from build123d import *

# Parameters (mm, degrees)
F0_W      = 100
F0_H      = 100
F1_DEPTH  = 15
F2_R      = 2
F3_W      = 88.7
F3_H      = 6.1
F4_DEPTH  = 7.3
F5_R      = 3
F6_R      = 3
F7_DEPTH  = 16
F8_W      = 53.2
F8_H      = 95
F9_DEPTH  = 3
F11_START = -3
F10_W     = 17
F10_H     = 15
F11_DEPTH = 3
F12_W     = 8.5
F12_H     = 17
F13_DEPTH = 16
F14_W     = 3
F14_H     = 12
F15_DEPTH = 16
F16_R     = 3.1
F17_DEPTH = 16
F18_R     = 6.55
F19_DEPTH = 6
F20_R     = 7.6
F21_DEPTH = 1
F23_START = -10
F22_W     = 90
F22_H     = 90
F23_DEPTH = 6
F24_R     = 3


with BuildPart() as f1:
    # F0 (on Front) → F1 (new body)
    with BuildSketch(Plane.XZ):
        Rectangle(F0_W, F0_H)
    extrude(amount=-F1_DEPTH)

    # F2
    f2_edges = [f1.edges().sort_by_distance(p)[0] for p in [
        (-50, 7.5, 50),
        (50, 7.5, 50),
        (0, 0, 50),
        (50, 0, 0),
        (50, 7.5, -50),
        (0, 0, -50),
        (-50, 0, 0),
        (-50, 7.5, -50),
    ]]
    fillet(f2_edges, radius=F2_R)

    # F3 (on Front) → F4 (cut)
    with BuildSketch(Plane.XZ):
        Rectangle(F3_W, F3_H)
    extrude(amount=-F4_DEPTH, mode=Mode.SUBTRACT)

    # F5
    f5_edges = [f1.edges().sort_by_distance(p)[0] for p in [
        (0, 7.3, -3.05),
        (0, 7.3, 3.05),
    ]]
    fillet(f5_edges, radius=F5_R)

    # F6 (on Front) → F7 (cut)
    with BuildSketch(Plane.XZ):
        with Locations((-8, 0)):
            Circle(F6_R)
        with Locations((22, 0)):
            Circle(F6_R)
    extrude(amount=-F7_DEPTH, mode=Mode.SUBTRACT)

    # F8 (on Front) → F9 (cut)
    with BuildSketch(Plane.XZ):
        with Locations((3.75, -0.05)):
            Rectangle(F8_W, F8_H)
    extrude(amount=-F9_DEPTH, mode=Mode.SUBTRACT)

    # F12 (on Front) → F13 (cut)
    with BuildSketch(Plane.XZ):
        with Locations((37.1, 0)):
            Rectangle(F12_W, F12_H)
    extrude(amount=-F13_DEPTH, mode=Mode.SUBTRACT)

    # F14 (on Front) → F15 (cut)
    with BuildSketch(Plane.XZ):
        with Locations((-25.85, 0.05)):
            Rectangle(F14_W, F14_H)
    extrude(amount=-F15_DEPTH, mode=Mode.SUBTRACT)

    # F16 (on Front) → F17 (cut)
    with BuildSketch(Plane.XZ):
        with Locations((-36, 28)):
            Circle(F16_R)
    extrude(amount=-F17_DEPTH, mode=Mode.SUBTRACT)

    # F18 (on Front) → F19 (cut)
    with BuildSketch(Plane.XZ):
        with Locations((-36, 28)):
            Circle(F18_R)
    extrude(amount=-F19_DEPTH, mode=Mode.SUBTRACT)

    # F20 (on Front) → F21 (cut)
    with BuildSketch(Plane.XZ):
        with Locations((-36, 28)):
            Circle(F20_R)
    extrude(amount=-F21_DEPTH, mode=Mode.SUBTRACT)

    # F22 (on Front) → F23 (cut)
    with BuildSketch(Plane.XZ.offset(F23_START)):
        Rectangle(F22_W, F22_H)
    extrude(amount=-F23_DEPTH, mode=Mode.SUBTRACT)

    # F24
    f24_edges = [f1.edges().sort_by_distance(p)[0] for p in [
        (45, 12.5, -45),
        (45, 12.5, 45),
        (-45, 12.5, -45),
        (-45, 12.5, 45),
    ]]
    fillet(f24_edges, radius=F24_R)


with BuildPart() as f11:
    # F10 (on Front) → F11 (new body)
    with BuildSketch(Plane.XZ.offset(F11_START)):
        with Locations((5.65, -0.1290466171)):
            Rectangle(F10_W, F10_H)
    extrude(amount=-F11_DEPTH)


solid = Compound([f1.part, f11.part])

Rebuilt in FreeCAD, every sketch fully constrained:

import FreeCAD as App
import Part
import Sketcher
Q = App.Units.Quantity


def edges_at(feature, points):
    """Names of the edges that pass closest to the given points."""
    edges = feature.Shape.Edges
    near = lambda p: min(range(len(edges)), key=lambda i: edges[i].distToShape(Part.Vertex(*p))[0])
    return sorted({f"Edge{near(p) + 1}" for p in points})

doc = App.newDocument("Part")
params = doc.addObject("Spreadsheet::Sheet", "Params")
for row, (alias, value) in enumerate([
    ("sketch1_width", "100 mm"),
    ("pad1_length", "15 mm"),
    ("fillet_radius", "2 mm"),
    ("sketch2_width", "88.7 mm"),
    ("sketch2_height", "6.1 mm"),
    ("pocket1_length", "7.3 mm"),
    ("fillet2_radius", "3 mm"),
    ("sketch3_diameter", "6 mm"),
    ("pocket2_length", "16 mm"),
    ("sketch4_height", "95 mm"),
    ("sketch4_width", "53.2 mm"),
    ("pocket3_length", "3 mm"),
    ("sketch5_height", "17 mm"),
    ("sketch5_width", "8.5 mm"),
    ("pocket4_length", "16 mm"),
    ("sketch6_width", "3 mm"),
    ("sketch6_height", "12 mm"),
    ("pocket5_length", "16 mm"),
    ("sketch7_diameter", "6.2 mm"),
    ("pocket6_length", "16 mm"),
    ("sketch8_diameter", "13.1 mm"),
    ("pocket7_length", "6 mm"),
    ("sketch9_diameter", "15.2 mm"),
    ("pocket8_length", "1 mm"),
    ("sketch10_width", "90 mm"),
    ("pocket9_length", "6 mm"),
    ("fillet3_radius", "3 mm"),
    ("sketch11_width", "17 mm"),
    ("sketch11_height", "15 mm"),
    ("pad2_length", "3 mm"),
], start=1):
    params.set(f"A{row}", alias)
    params.set(f"B{row}", "=" + value)
    params.setAlias(f"B{row}", alias)

body = doc.addObject("PartDesign::Body", "Body")

# Sketch on XZ plane
sketch1 = body.newObject("Sketcher::SketchObject", "Sketch")
sketch1.AttachmentSupport = (doc.getObject("XZ_Plane"), [""])
sketch1.MapMode = "FlatFace"
sketch1.addGeometry(Part.LineSegment(App.Vector(-50, 50, 0), App.Vector(-50, -50, 0)), False)
sketch1.addGeometry(Part.LineSegment(App.Vector(-50, -50, 0), App.Vector(50, -50, 0)), False)
sketch1.addGeometry(Part.LineSegment(App.Vector(50, -50, 0), App.Vector(50, 50, 0)), False)
sketch1.addGeometry(Part.LineSegment(App.Vector(50, 50, 0), App.Vector(-50, 50, 0)), False)
sketch1.addConstraint(Sketcher.Constraint("Coincident", 0, 2, 1, 1))
sketch1.addConstraint(Sketcher.Constraint("Coincident", 1, 2, 2, 1))
sketch1.addConstraint(Sketcher.Constraint("Coincident", 2, 2, 3, 1))
sketch1.addConstraint(Sketcher.Constraint("Coincident", 3, 2, 0, 1))
sketch1.addConstraint(Sketcher.Constraint("Vertical", 0))
sketch1.addConstraint(Sketcher.Constraint("Horizontal", 1))
sketch1.addConstraint(Sketcher.Constraint("Vertical", 2))
sketch1.addConstraint(Sketcher.Constraint("Horizontal", 3))
sketch1.addConstraint(Sketcher.Constraint("Symmetric", 0, 2, 2, 2, -1, 1))
sketch1.addConstraint(Sketcher.Constraint("Equal", 3, 0))
sketch1.addConstraint(Sketcher.Constraint("DistanceX", 1, 1, 1, 2, Q("100 mm")))
sketch1.setExpression("Constraints[10]", "Params.sketch1_width")
pad1 = body.newObject("PartDesign::Pad", "Pad")
pad1.Profile = sketch1
pad1.setExpression("Length", "Params.pad1_length")
pad1.Reversed = True
doc.recompute()

fillet = body.newObject("PartDesign::Fillet", "Fillet")
fillet.Base = (pad1, edges_at(pad1, [
    (-50, 7.5, 50),
    (50, 7.5, 50),
    (0, 0, 50),
    (50, 0, 0),
    (50, 7.5, -50),
    (0, 0, -50),
    (-50, 0, 0),
    (-50, 7.5, -50),
]))
fillet.setExpression("Radius", "Params.fillet_radius")

# Sketch on XZ plane
sketch2 = body.newObject("Sketcher::SketchObject", "Sketch001")
sketch2.AttachmentSupport = (doc.getObject("XZ_Plane"), [""])
sketch2.MapMode = "FlatFace"
sketch2.addGeometry(Part.LineSegment(App.Vector(-44, 3, 0), App.Vector(-44, -3, 0)), False)
sketch2.addGeometry(Part.LineSegment(App.Vector(-44, -3, 0), App.Vector(44, -3, 0)), False)
sketch2.addGeometry(Part.LineSegment(App.Vector(44, -3, 0), App.Vector(44, 3, 0)), False)
sketch2.addGeometry(Part.LineSegment(App.Vector(44, 3, 0), App.Vector(-44, 3, 0)), False)
sketch2.addConstraint(Sketcher.Constraint("Coincident", 0, 2, 1, 1))
sketch2.addConstraint(Sketcher.Constraint("Coincident", 1, 2, 2, 1))
sketch2.addConstraint(Sketcher.Constraint("Coincident", 2, 2, 3, 1))
sketch2.addConstraint(Sketcher.Constraint("Coincident", 3, 2, 0, 1))
sketch2.addConstraint(Sketcher.Constraint("Vertical", 0))
sketch2.addConstraint(Sketcher.Constraint("Horizontal", 1))
sketch2.addConstraint(Sketcher.Constraint("Vertical", 2))
sketch2.addConstraint(Sketcher.Constraint("Horizontal", 3))
sketch2.addConstraint(Sketcher.Constraint("Symmetric", 0, 2, 2, 2, -1, 1))
sketch2.addConstraint(Sketcher.Constraint("DistanceX", 1, 1, 1, 2, Q("88.7 mm")))
sketch2.addConstraint(Sketcher.Constraint("DistanceY", 0, 2, 0, 1, Q("6.1 mm")))
sketch2.setExpression("Constraints[9]", "Params.sketch2_width")
sketch2.setExpression("Constraints[10]", "Params.sketch2_height")
pocket1 = body.newObject("PartDesign::Pocket", "Pocket")
pocket1.Profile = sketch2
pocket1.setExpression("Length", "Params.pocket1_length")
doc.recompute()

fillet2 = body.newObject("PartDesign::Fillet", "Fillet001")
fillet2.Base = (pocket1, edges_at(pocket1, [(0, 7.3, -3.05), (0, 7.3, 3.05)]))
fillet2.setExpression("Radius", "Params.fillet2_radius")

# Sketch on XZ plane
sketch3 = body.newObject("Sketcher::SketchObject", "Sketch002")
sketch3.AttachmentSupport = (doc.getObject("XZ_Plane"), [""])
sketch3.MapMode = "FlatFace"
sketch3.addGeometry(Part.Circle(App.Vector(-8, 0, 0), App.Vector(0, 0, 1), 3), False)
sketch3.addGeometry(Part.Circle(App.Vector(22, 0, 0), App.Vector(0, 0, 1), 3), False)
sketch3.addConstraint(Sketcher.Constraint("Equal", 0, 1))
sketch3.addConstraint(Sketcher.Constraint("PointOnObject", 0, 3, -1))
sketch3.addConstraint(Sketcher.Constraint("PointOnObject", 1, 3, -1))
sketch3.addConstraint(Sketcher.Constraint("Diameter", 0, Q("6 mm")))
sketch3.addConstraint(Sketcher.Constraint("DistanceX", 0, 3, -1, 1, Q("8 mm")))
sketch3.addConstraint(Sketcher.Constraint("DistanceX", -1, 1, 1, 3, Q("22 mm")))
sketch3.setExpression("Constraints[3]", "Params.sketch3_diameter")
pocket2 = body.newObject("PartDesign::Pocket", "Pocket001")
pocket2.Profile = sketch3
pocket2.setExpression("Length", "Params.pocket2_length")

# Sketch on XZ plane
sketch4 = body.newObject("Sketcher::SketchObject", "Sketch003")
sketch4.AttachmentSupport = (doc.getObject("XZ_Plane"), [""])
sketch4.MapMode = "FlatFace"
sketch4.addGeometry(Part.LineSegment(App.Vector(-23, 47, 0), App.Vector(-23, -48, 0)), False)
sketch4.addGeometry(Part.LineSegment(App.Vector(-23, -48, 0), App.Vector(30, -48, 0)), False)
sketch4.addGeometry(Part.LineSegment(App.Vector(30, -48, 0), App.Vector(30, 47, 0)), False)
sketch4.addGeometry(Part.LineSegment(App.Vector(30, 47, 0), App.Vector(-23, 47, 0)), False)
sketch4.addConstraint(Sketcher.Constraint("Coincident", 0, 2, 1, 1))
sketch4.addConstraint(Sketcher.Constraint("Coincident", 1, 2, 2, 1))
sketch4.addConstraint(Sketcher.Constraint("Coincident", 2, 2, 3, 1))
sketch4.addConstraint(Sketcher.Constraint("Coincident", 3, 2, 0, 1))
sketch4.addConstraint(Sketcher.Constraint("Vertical", 0))
sketch4.addConstraint(Sketcher.Constraint("Horizontal", 1))
sketch4.addConstraint(Sketcher.Constraint("Vertical", 2))
sketch4.addConstraint(Sketcher.Constraint("Horizontal", 3))
sketch4.addConstraint(Sketcher.Constraint("DistanceY", 0, 2, 0, 1, Q("95 mm")))
sketch4.addConstraint(Sketcher.Constraint("DistanceX", 1, 1, 1, 2, Q("53.2 mm")))
sketch4.addConstraint(Sketcher.Constraint("DistanceX", 0, 2, -1, 1, Q("22.85 mm")))
sketch4.addConstraint(Sketcher.Constraint("DistanceY", 0, 2, -1, 1, Q("47.55 mm")))
sketch4.setExpression("Constraints[8]", "Params.sketch4_height")
sketch4.setExpression("Constraints[9]", "Params.sketch4_width")
pocket3 = body.newObject("PartDesign::Pocket", "Pocket002")
pocket3.Profile = sketch4
pocket3.setExpression("Length", "Params.pocket3_length")

# Sketch on XZ plane
sketch5 = body.newObject("Sketcher::SketchObject", "Sketch004")
sketch5.AttachmentSupport = (doc.getObject("XZ_Plane"), [""])
sketch5.MapMode = "FlatFace"
sketch5.addGeometry(Part.LineSegment(App.Vector(33, 8, 0), App.Vector(33, -8, 0)), False)
sketch5.addGeometry(Part.LineSegment(App.Vector(33, -8, 0), App.Vector(41, -8, 0)), False)
sketch5.addGeometry(Part.LineSegment(App.Vector(41, -8, 0), App.Vector(41, 8, 0)), False)
sketch5.addGeometry(Part.LineSegment(App.Vector(41, 8, 0), App.Vector(33, 8, 0)), False)
sketch5.addConstraint(Sketcher.Constraint("Coincident", 0, 2, 1, 1))
sketch5.addConstraint(Sketcher.Constraint("Coincident", 1, 2, 2, 1))
sketch5.addConstraint(Sketcher.Constraint("Coincident", 2, 2, 3, 1))
sketch5.addConstraint(Sketcher.Constraint("Coincident", 3, 2, 0, 1))
sketch5.addConstraint(Sketcher.Constraint("Vertical", 0))
sketch5.addConstraint(Sketcher.Constraint("Horizontal", 1))
sketch5.addConstraint(Sketcher.Constraint("Vertical", 2))
sketch5.addConstraint(Sketcher.Constraint("Horizontal", 3))
sketch5.addConstraint(Sketcher.Constraint("DistanceY", 0, 2, 0, 1, Q("17 mm")))
sketch5.addConstraint(Sketcher.Constraint("DistanceX", 1, 1, 1, 2, Q("8.5 mm")))
sketch5.addConstraint(Sketcher.Constraint("DistanceY", 0, 2, -1, 1, Q("8.5 mm")))
sketch5.addConstraint(Sketcher.Constraint("DistanceX", -1, 1, 0, 2, Q("32.85 mm")))
sketch5.setExpression("Constraints[8]", "Params.sketch5_height")
sketch5.setExpression("Constraints[9]", "Params.sketch5_width")
pocket4 = body.newObject("PartDesign::Pocket", "Pocket003")
pocket4.Profile = sketch5
pocket4.setExpression("Length", "Params.pocket4_length")

# Sketch on XZ plane
sketch6 = body.newObject("Sketcher::SketchObject", "Sketch005")
sketch6.AttachmentSupport = (doc.getObject("XZ_Plane"), [""])
sketch6.MapMode = "FlatFace"
sketch6.addGeometry(Part.LineSegment(App.Vector(-27.4, 6, 0), App.Vector(-27.4, -6, 0)), False)
sketch6.addGeometry(Part.LineSegment(App.Vector(-27.4, -6, 0), App.Vector(-24.4, -6, 0)), False)
sketch6.addGeometry(Part.LineSegment(App.Vector(-24.4, -6, 0), App.Vector(-24.4, 6, 0)), False)
sketch6.addGeometry(Part.LineSegment(App.Vector(-24.4, 6, 0), App.Vector(-27.4, 6, 0)), False)
sketch6.addConstraint(Sketcher.Constraint("Coincident", 0, 2, 1, 1))
sketch6.addConstraint(Sketcher.Constraint("Coincident", 1, 2, 2, 1))
sketch6.addConstraint(Sketcher.Constraint("Coincident", 2, 2, 3, 1))
sketch6.addConstraint(Sketcher.Constraint("Coincident", 3, 2, 0, 1))
sketch6.addConstraint(Sketcher.Constraint("Vertical", 0))
sketch6.addConstraint(Sketcher.Constraint("Horizontal", 1))
sketch6.addConstraint(Sketcher.Constraint("Vertical", 2))
sketch6.addConstraint(Sketcher.Constraint("Horizontal", 3))
sketch6.addConstraint(Sketcher.Constraint("DistanceX", 1, 1, 1, 2, Q("3 mm")))
sketch6.addConstraint(Sketcher.Constraint("DistanceY", 0, 2, 0, 1, Q("12 mm")))
sketch6.addConstraint(Sketcher.Constraint("DistanceX", 0, 2, -1, 1, Q("27.35 mm")))
sketch6.addConstraint(Sketcher.Constraint("DistanceY", 0, 2, -1, 1, Q("5.95 mm")))
sketch6.setExpression("Constraints[8]", "Params.sketch6_width")
sketch6.setExpression("Constraints[9]", "Params.sketch6_height")
pocket5 = body.newObject("PartDesign::Pocket", "Pocket004")
pocket5.Profile = sketch6
pocket5.setExpression("Length", "Params.pocket5_length")

# Sketch on XZ plane
sketch7 = body.newObject("Sketcher::SketchObject", "Sketch006")
sketch7.AttachmentSupport = (doc.getObject("XZ_Plane"), [""])
sketch7.MapMode = "FlatFace"
sketch7.addGeometry(Part.Circle(App.Vector(-36, 28, 0), App.Vector(0, 0, 1), 3.1), False)
sketch7.addConstraint(Sketcher.Constraint("Diameter", 0, Q("6.2 mm")))
sketch7.addConstraint(Sketcher.Constraint("DistanceX", 0, 3, -1, 1, Q("36 mm")))
sketch7.addConstraint(Sketcher.Constraint("DistanceY", -1, 1, 0, 3, Q("28 mm")))
sketch7.setExpression("Constraints[0]", "Params.sketch7_diameter")
pocket6 = body.newObject("PartDesign::Pocket", "Pocket005")
pocket6.Profile = sketch7
pocket6.setExpression("Length", "Params.pocket6_length")

# Sketch on XZ plane
sketch8 = body.newObject("Sketcher::SketchObject", "Sketch007")
sketch8.AttachmentSupport = (doc.getObject("XZ_Plane"), [""])
sketch8.MapMode = "FlatFace"
sketch8.addGeometry(Part.Circle(App.Vector(-36, 28, 0), App.Vector(0, 0, 1), 7), False)
sketch8.addConstraint(Sketcher.Constraint("Diameter", 0, Q("13.1 mm")))
sketch8.addConstraint(Sketcher.Constraint("DistanceX", 0, 3, -1, 1, Q("36 mm")))
sketch8.addConstraint(Sketcher.Constraint("DistanceY", -1, 1, 0, 3, Q("28 mm")))
sketch8.setExpression("Constraints[0]", "Params.sketch8_diameter")
pocket7 = body.newObject("PartDesign::Pocket", "Pocket006")
pocket7.Profile = sketch8
pocket7.setExpression("Length", "Params.pocket7_length")

# Sketch on XZ plane
sketch9 = body.newObject("Sketcher::SketchObject", "Sketch008")
sketch9.AttachmentSupport = (doc.getObject("XZ_Plane"), [""])
sketch9.MapMode = "FlatFace"
sketch9.addGeometry(Part.Circle(App.Vector(-36, 28, 0), App.Vector(0, 0, 1), 8), False)
sketch9.addConstraint(Sketcher.Constraint("Diameter", 0, Q("15.2 mm")))
sketch9.addConstraint(Sketcher.Constraint("DistanceX", 0, 3, -1, 1, Q("36 mm")))
sketch9.addConstraint(Sketcher.Constraint("DistanceY", -1, 1, 0, 3, Q("28 mm")))
sketch9.setExpression("Constraints[0]", "Params.sketch9_diameter")
pocket8 = body.newObject("PartDesign::Pocket", "Pocket007")
pocket8.Profile = sketch9
pocket8.setExpression("Length", "Params.pocket8_length")

# Sketch on XZ plane
sketch10 = body.newObject("Sketcher::SketchObject", "Sketch009")
sketch10.AttachmentSupport = (doc.getObject("XZ_Plane"), [""])
sketch10.MapMode = "FlatFace"
sketch10.AttachmentOffset = App.Placement(App.Vector(0, 0, -10), App.Rotation())
sketch10.addGeometry(Part.LineSegment(App.Vector(-45, 45, 0), App.Vector(-45, -45, 0)), False)
sketch10.addGeometry(Part.LineSegment(App.Vector(-45, -45, 0), App.Vector(45, -45, 0)), False)
sketch10.addGeometry(Part.LineSegment(App.Vector(45, -45, 0), App.Vector(45, 45, 0)), False)
sketch10.addGeometry(Part.LineSegment(App.Vector(45, 45, 0), App.Vector(-45, 45, 0)), False)
sketch10.addConstraint(Sketcher.Constraint("Coincident", 0, 2, 1, 1))
sketch10.addConstraint(Sketcher.Constraint("Coincident", 1, 2, 2, 1))
sketch10.addConstraint(Sketcher.Constraint("Coincident", 2, 2, 3, 1))
sketch10.addConstraint(Sketcher.Constraint("Coincident", 3, 2, 0, 1))
sketch10.addConstraint(Sketcher.Constraint("Vertical", 0))
sketch10.addConstraint(Sketcher.Constraint("Horizontal", 1))
sketch10.addConstraint(Sketcher.Constraint("Vertical", 2))
sketch10.addConstraint(Sketcher.Constraint("Horizontal", 3))
sketch10.addConstraint(Sketcher.Constraint("Symmetric", 0, 2, 2, 2, -1, 1))
sketch10.addConstraint(Sketcher.Constraint("Equal", 3, 0))
sketch10.addConstraint(Sketcher.Constraint("DistanceX", 1, 1, 1, 2, Q("90 mm")))
sketch10.setExpression("Constraints[10]", "Params.sketch10_width")
pocket9 = body.newObject("PartDesign::Pocket", "Pocket008")
pocket9.Profile = sketch10
pocket9.setExpression("Length", "Params.pocket9_length")
doc.recompute()

fillet3 = body.newObject("PartDesign::Fillet", "Fillet002")
fillet3.Base = (pocket9, edges_at(pocket9, [
    (45, 12.5, -45),
    (45, 12.5, 45),
    (-45, 12.5, -45),
    (-45, 12.5, 45),
]))
fillet3.setExpression("Radius", "Params.fillet3_radius")
body2 = doc.addObject("PartDesign::Body", "Body001")

# Sketch on XZ plane
sketch11 = body2.newObject("Sketcher::SketchObject", "Sketch010")
sketch11.AttachmentSupport = (doc.getObject("XZ_Plane001"), [""])
sketch11.MapMode = "FlatFace"
sketch11.AttachmentOffset = App.Placement(App.Vector(0, 0, -3), App.Rotation())
sketch11.addGeometry(Part.LineSegment(App.Vector(-3, 7, 0), App.Vector(-3, -8, 0)), False)
sketch11.addGeometry(Part.LineSegment(App.Vector(-3, -8, 0), App.Vector(14, -8, 0)), False)
sketch11.addGeometry(Part.LineSegment(App.Vector(14, -8, 0), App.Vector(14, 7, 0)), False)
sketch11.addGeometry(Part.LineSegment(App.Vector(14, 7, 0), App.Vector(-3, 7, 0)), False)
sketch11.addConstraint(Sketcher.Constraint("Coincident", 0, 2, 1, 1))
sketch11.addConstraint(Sketcher.Constraint("Coincident", 1, 2, 2, 1))
sketch11.addConstraint(Sketcher.Constraint("Coincident", 2, 2, 3, 1))
sketch11.addConstraint(Sketcher.Constraint("Coincident", 3, 2, 0, 1))
sketch11.addConstraint(Sketcher.Constraint("Vertical", 0))
sketch11.addConstraint(Sketcher.Constraint("Horizontal", 1))
sketch11.addConstraint(Sketcher.Constraint("Vertical", 2))
sketch11.addConstraint(Sketcher.Constraint("Horizontal", 3))
sketch11.addConstraint(Sketcher.Constraint("DistanceX", 1, 1, 1, 2, Q("17 mm")))
sketch11.addConstraint(Sketcher.Constraint("DistanceY", 0, 2, 0, 1, Q("15 mm")))
sketch11.addConstraint(Sketcher.Constraint("DistanceX", 0, 2, -1, 1, Q("2.85 mm")))
sketch11.addConstraint(Sketcher.Constraint("DistanceY", 0, 2, -1, 1, Q("7.629047 mm")))
sketch11.setExpression("Constraints[8]", "Params.sketch11_width")
sketch11.setExpression("Constraints[9]", "Params.sketch11_height")
pad2 = body2.newObject("PartDesign::Pad", "Pad001")
pad2.Profile = sketch11
pad2.setExpression("Length", "Params.pad2_length")
pad2.Reversed = True

doc.recompute()
